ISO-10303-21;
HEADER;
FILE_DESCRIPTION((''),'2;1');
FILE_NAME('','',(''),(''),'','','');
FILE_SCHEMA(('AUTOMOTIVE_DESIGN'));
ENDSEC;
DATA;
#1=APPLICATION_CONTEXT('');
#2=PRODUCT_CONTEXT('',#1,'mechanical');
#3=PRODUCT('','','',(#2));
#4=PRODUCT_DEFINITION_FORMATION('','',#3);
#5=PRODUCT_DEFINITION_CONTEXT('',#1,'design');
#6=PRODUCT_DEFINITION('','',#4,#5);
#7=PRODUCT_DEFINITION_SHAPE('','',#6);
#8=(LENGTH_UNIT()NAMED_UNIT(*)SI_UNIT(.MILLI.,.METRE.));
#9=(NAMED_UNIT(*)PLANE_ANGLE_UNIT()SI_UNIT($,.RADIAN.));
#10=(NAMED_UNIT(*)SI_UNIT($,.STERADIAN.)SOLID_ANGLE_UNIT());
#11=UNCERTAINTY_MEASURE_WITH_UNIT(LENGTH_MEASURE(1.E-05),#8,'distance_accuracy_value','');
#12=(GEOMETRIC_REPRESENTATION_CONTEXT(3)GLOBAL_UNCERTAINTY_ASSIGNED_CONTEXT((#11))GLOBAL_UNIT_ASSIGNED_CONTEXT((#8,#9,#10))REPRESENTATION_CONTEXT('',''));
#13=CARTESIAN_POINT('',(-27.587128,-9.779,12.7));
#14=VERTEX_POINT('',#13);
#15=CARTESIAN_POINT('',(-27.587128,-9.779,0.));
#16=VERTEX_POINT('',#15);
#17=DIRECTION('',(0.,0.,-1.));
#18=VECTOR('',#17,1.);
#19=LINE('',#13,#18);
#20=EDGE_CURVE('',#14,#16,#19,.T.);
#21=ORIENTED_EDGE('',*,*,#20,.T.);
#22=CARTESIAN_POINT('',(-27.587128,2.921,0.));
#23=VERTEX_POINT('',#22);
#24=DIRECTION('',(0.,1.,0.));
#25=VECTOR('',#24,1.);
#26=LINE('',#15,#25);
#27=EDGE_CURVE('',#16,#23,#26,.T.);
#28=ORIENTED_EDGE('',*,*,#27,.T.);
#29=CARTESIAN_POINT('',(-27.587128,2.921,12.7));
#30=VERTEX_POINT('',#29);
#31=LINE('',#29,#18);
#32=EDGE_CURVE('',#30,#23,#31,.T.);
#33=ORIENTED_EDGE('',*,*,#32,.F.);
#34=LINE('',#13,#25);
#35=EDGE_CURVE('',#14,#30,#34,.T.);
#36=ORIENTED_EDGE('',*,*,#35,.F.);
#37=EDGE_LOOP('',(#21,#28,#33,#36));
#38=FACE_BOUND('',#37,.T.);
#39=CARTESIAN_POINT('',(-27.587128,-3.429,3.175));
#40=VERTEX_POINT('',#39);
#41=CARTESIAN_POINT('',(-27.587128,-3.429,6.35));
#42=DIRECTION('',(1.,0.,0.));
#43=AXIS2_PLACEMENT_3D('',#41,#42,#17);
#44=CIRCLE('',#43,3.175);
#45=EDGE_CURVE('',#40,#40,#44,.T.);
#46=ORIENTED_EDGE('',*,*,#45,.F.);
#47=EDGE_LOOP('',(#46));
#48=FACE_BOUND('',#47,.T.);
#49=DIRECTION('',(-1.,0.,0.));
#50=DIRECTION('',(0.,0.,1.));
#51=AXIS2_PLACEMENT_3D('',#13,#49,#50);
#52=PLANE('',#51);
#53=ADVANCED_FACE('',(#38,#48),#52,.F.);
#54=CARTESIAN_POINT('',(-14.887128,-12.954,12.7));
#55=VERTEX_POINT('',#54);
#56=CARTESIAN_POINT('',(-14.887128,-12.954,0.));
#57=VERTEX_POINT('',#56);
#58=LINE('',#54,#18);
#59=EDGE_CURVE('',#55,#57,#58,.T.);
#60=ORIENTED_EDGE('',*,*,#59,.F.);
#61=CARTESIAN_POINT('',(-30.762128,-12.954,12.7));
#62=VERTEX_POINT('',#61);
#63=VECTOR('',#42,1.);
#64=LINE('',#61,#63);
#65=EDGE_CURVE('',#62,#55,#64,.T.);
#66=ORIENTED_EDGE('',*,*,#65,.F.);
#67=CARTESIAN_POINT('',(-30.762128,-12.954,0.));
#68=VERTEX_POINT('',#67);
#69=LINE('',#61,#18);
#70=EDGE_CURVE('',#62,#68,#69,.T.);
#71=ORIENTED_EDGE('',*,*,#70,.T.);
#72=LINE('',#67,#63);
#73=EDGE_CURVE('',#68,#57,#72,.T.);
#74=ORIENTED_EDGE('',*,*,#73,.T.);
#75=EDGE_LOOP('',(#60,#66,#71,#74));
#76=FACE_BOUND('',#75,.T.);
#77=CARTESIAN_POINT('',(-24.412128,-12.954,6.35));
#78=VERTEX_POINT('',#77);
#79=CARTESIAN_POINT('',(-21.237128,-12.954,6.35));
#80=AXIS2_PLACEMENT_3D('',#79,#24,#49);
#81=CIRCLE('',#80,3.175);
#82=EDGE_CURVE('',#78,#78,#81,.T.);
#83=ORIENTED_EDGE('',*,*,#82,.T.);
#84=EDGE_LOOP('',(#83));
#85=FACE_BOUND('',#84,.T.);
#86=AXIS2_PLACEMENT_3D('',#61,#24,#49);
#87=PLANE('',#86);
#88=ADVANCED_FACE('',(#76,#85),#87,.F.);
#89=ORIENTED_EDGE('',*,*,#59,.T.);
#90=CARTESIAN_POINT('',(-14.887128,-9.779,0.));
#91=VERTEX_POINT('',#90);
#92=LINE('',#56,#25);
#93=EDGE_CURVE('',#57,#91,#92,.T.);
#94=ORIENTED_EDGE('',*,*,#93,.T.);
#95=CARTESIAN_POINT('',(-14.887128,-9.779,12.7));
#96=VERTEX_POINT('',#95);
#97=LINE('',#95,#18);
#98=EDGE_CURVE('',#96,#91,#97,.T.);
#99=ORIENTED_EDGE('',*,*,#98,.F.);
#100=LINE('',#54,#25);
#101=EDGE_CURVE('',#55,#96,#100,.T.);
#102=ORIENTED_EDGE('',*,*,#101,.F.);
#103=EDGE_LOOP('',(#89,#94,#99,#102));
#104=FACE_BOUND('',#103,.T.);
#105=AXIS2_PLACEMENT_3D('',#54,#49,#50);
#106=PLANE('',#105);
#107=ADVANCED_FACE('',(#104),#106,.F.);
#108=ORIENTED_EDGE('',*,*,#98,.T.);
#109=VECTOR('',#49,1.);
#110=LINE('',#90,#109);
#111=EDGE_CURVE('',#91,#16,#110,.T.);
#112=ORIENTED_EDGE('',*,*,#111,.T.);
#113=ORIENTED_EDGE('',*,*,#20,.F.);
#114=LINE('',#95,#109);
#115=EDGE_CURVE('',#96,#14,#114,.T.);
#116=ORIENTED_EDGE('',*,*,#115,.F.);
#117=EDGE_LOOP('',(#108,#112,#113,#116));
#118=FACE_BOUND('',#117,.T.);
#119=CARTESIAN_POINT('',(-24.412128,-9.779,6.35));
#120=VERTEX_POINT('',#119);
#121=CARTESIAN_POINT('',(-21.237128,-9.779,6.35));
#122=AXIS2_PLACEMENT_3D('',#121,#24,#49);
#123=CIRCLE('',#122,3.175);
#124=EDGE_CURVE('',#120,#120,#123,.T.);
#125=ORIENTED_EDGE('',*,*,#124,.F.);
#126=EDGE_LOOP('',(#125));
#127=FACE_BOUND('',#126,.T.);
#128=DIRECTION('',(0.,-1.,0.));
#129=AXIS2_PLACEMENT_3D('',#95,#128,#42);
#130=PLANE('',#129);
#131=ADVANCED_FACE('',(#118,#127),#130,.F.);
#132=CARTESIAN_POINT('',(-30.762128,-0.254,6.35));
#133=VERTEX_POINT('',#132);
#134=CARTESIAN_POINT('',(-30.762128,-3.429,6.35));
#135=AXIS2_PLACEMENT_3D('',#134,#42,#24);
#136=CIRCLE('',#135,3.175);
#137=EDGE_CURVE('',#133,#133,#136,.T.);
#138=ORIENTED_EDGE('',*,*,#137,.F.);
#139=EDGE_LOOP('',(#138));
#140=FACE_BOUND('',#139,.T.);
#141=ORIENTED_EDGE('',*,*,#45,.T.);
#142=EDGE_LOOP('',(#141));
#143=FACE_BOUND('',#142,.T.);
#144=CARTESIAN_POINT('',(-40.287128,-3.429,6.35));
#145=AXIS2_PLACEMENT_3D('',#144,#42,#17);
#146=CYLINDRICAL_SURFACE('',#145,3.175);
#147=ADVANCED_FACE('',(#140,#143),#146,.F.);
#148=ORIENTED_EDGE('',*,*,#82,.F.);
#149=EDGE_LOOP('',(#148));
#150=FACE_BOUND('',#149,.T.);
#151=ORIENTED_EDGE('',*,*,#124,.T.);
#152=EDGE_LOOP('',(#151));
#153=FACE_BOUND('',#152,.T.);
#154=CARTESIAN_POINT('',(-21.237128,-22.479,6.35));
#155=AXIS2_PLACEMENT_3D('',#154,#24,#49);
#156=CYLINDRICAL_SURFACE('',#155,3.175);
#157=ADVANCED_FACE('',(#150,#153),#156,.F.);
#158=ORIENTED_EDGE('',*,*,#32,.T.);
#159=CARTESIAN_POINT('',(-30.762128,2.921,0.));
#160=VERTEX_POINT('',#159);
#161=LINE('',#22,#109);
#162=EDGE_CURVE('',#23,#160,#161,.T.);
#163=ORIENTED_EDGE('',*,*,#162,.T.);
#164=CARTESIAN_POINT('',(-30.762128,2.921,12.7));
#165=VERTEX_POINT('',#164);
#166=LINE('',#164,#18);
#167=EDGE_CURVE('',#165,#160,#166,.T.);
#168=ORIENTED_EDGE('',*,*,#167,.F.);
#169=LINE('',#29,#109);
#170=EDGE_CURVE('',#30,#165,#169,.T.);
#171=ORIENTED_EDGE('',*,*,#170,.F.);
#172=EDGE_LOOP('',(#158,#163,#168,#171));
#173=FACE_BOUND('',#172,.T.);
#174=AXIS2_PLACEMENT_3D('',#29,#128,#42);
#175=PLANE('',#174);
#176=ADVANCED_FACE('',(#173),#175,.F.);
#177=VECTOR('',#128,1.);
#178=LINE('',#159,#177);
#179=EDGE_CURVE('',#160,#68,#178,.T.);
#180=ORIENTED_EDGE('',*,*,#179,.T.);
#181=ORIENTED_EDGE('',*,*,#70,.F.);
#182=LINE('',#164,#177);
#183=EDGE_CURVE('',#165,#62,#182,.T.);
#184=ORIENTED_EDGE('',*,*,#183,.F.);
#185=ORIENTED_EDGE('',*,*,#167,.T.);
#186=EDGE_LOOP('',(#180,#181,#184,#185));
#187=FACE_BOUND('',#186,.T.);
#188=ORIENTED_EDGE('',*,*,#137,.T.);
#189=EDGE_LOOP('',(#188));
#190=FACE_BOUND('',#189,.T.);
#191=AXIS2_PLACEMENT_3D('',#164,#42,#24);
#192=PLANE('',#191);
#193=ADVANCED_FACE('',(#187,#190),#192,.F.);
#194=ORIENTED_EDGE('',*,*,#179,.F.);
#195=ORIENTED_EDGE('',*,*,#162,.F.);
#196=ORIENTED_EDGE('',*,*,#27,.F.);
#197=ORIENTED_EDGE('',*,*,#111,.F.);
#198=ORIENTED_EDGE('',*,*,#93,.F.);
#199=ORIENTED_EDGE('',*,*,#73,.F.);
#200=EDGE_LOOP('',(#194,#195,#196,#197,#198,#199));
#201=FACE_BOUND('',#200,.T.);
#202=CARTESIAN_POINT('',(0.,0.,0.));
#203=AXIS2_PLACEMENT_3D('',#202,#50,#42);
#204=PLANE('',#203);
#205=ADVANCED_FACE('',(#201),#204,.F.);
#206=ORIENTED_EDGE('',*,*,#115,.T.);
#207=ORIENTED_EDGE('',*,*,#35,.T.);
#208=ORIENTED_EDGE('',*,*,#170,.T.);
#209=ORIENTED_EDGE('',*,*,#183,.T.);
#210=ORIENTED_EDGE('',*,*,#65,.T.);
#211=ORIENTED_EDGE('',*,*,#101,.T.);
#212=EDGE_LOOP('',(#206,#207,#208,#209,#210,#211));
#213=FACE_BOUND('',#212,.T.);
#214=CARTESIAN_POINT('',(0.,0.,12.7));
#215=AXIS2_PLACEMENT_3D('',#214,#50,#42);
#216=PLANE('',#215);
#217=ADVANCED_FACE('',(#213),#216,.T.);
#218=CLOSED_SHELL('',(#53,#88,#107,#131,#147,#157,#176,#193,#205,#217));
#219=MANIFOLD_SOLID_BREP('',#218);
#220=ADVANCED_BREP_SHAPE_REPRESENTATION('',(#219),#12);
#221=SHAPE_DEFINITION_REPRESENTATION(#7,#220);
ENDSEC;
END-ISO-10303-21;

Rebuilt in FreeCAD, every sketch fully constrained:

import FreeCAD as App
import Part
import Sketcher
from FreeCAD import Vector
Q = App.Units.Quantity


def add_polygon(sketch, points):
    """Adds a closed chain of lines whose ends are joined by coincident constraints."""
    first, n = sketch.GeometryCount, len(points)
    for a, b in zip(points, points[1:] + points[:1]):
        sketch.addGeometry(Part.LineSegment(App.Vector(*a, 0), App.Vector(*b, 0)), False)
    for i in range(n):
        sketch.addConstraint(Sketcher.Constraint("Coincident", first + i, 2, first + (i + 1) % n, 1))

doc = App.newDocument("Part")
body = doc.addObject("PartDesign::Body", "Body")

# Sketch on XY plane
sketch1 = body.newObject("Sketcher::SketchObject", "Sketch")
sketch1.AttachmentSupport = (doc.getObject("XY_Plane"), [""])
sketch1.MapMode = "FlatFace"
add_polygon(sketch1, [(-30.8, 2.9), (-30.8, -13), (-14.9, -13), (-14.9, -9.8), (-27.6, -9.8), (-27.6, 2.9)])  # lines 0-5
sketch1.addConstraint(Sketcher.Constraint("Vertical", 0))
sketch1.addConstraint(Sketcher.Constraint("Horizontal", 1))
sketch1.addConstraint(Sketcher.Constraint("Vertical", 2))
sketch1.addConstraint(Sketcher.Constraint("Horizontal", 3))
sketch1.addConstraint(Sketcher.Constraint("Vertical", 4))
sketch1.addConstraint(Sketcher.Constraint("Horizontal", 5))
sketch1.addConstraint(Sketcher.Constraint("Equal", 1, 0))
sketch1.addConstraint(Sketcher.Constraint("Equal", 5, 2))
sketch1.addConstraint(Sketcher.Constraint("DistanceX", 3, 2, 3, 1, Q("0.5 in")))
sketch1.addConstraint(Sketcher.Constraint("DistanceX", 1, 1, 1, 2, Q("0.625 in")))
sketch1.addConstraint(Sketcher.Constraint("DistanceY", 0, 2, -1, 1, Q("0.51 in")))
sketch1.addConstraint(Sketcher.Constraint("DistanceX", 0, 2, -1, 1, Q("30.762128 mm")))
pad1 = body.newObject("PartDesign::Pad", "Pad")
pad1.Profile = sketch1
pad1.Length = Q("0.5 in")

# Sketch on YZ plane
sketch2 = body.newObject("Sketcher::SketchObject", "Sketch001")
sketch2.AttachmentSupport = (doc.getObject("YZ_Plane"), [""])
sketch2.MapMode = "FlatFace"
sketch2.AttachmentOffset = App.Placement(Vector(0, 0, -27.587128), App.Rotation())
sketch2.addGeometry(Part.Circle(Vector(-3.4, 6.3, 0), Vector(0, 0, 1), 3.2), False)
sketch2.addConstraint(Sketcher.Constraint("Diameter", 0, Q("0.25 in")))
sketch2.addConstraint(Sketcher.Constraint("DistanceY", -1, 1, 0, 3, Q("0.25 in")))
sketch2.addConstraint(Sketcher.Constraint("DistanceX", 0, 3, -1, 1, Q("0.135 in")))
pocket1 = body.newObject("PartDesign::Pocket", "Pocket")
pocket1.Profile = sketch2
pocket1.Length = Q("0.5 in")

# Sketch on XZ plane
sketch3 = body.newObject("Sketcher::SketchObject", "Sketch002")
sketch3.AttachmentSupport = (doc.getObject("XZ_Plane"), [""])
sketch3.MapMode = "FlatFace"
sketch3.AttachmentOffset = App.Placement(Vector(0, 0, 0.385 * 25.4), App.Rotation())
sketch3.addGeometry(Part.Circle(Vector(-21.2, 6.3, 0), Vector(0, 0, 1), 3.2), False)
sketch3.addConstraint(Sketcher.Constraint("Diameter", 0, Q("0.25 in")))
sketch3.addConstraint(Sketcher.Constraint("DistanceY", -1, 1, 0, 3, Q("0.25 in")))
sketch3.addConstraint(Sketcher.Constraint("DistanceX", 0, 3, -1, 1, Q("21.237128 mm")))
pocket2 = body.newObject("PartDesign::Pocket", "Pocket001")
pocket2.Profile = sketch3
pocket2.Length = Q("0.5 in")
pocket2.Reversed = True

doc.recompute()
